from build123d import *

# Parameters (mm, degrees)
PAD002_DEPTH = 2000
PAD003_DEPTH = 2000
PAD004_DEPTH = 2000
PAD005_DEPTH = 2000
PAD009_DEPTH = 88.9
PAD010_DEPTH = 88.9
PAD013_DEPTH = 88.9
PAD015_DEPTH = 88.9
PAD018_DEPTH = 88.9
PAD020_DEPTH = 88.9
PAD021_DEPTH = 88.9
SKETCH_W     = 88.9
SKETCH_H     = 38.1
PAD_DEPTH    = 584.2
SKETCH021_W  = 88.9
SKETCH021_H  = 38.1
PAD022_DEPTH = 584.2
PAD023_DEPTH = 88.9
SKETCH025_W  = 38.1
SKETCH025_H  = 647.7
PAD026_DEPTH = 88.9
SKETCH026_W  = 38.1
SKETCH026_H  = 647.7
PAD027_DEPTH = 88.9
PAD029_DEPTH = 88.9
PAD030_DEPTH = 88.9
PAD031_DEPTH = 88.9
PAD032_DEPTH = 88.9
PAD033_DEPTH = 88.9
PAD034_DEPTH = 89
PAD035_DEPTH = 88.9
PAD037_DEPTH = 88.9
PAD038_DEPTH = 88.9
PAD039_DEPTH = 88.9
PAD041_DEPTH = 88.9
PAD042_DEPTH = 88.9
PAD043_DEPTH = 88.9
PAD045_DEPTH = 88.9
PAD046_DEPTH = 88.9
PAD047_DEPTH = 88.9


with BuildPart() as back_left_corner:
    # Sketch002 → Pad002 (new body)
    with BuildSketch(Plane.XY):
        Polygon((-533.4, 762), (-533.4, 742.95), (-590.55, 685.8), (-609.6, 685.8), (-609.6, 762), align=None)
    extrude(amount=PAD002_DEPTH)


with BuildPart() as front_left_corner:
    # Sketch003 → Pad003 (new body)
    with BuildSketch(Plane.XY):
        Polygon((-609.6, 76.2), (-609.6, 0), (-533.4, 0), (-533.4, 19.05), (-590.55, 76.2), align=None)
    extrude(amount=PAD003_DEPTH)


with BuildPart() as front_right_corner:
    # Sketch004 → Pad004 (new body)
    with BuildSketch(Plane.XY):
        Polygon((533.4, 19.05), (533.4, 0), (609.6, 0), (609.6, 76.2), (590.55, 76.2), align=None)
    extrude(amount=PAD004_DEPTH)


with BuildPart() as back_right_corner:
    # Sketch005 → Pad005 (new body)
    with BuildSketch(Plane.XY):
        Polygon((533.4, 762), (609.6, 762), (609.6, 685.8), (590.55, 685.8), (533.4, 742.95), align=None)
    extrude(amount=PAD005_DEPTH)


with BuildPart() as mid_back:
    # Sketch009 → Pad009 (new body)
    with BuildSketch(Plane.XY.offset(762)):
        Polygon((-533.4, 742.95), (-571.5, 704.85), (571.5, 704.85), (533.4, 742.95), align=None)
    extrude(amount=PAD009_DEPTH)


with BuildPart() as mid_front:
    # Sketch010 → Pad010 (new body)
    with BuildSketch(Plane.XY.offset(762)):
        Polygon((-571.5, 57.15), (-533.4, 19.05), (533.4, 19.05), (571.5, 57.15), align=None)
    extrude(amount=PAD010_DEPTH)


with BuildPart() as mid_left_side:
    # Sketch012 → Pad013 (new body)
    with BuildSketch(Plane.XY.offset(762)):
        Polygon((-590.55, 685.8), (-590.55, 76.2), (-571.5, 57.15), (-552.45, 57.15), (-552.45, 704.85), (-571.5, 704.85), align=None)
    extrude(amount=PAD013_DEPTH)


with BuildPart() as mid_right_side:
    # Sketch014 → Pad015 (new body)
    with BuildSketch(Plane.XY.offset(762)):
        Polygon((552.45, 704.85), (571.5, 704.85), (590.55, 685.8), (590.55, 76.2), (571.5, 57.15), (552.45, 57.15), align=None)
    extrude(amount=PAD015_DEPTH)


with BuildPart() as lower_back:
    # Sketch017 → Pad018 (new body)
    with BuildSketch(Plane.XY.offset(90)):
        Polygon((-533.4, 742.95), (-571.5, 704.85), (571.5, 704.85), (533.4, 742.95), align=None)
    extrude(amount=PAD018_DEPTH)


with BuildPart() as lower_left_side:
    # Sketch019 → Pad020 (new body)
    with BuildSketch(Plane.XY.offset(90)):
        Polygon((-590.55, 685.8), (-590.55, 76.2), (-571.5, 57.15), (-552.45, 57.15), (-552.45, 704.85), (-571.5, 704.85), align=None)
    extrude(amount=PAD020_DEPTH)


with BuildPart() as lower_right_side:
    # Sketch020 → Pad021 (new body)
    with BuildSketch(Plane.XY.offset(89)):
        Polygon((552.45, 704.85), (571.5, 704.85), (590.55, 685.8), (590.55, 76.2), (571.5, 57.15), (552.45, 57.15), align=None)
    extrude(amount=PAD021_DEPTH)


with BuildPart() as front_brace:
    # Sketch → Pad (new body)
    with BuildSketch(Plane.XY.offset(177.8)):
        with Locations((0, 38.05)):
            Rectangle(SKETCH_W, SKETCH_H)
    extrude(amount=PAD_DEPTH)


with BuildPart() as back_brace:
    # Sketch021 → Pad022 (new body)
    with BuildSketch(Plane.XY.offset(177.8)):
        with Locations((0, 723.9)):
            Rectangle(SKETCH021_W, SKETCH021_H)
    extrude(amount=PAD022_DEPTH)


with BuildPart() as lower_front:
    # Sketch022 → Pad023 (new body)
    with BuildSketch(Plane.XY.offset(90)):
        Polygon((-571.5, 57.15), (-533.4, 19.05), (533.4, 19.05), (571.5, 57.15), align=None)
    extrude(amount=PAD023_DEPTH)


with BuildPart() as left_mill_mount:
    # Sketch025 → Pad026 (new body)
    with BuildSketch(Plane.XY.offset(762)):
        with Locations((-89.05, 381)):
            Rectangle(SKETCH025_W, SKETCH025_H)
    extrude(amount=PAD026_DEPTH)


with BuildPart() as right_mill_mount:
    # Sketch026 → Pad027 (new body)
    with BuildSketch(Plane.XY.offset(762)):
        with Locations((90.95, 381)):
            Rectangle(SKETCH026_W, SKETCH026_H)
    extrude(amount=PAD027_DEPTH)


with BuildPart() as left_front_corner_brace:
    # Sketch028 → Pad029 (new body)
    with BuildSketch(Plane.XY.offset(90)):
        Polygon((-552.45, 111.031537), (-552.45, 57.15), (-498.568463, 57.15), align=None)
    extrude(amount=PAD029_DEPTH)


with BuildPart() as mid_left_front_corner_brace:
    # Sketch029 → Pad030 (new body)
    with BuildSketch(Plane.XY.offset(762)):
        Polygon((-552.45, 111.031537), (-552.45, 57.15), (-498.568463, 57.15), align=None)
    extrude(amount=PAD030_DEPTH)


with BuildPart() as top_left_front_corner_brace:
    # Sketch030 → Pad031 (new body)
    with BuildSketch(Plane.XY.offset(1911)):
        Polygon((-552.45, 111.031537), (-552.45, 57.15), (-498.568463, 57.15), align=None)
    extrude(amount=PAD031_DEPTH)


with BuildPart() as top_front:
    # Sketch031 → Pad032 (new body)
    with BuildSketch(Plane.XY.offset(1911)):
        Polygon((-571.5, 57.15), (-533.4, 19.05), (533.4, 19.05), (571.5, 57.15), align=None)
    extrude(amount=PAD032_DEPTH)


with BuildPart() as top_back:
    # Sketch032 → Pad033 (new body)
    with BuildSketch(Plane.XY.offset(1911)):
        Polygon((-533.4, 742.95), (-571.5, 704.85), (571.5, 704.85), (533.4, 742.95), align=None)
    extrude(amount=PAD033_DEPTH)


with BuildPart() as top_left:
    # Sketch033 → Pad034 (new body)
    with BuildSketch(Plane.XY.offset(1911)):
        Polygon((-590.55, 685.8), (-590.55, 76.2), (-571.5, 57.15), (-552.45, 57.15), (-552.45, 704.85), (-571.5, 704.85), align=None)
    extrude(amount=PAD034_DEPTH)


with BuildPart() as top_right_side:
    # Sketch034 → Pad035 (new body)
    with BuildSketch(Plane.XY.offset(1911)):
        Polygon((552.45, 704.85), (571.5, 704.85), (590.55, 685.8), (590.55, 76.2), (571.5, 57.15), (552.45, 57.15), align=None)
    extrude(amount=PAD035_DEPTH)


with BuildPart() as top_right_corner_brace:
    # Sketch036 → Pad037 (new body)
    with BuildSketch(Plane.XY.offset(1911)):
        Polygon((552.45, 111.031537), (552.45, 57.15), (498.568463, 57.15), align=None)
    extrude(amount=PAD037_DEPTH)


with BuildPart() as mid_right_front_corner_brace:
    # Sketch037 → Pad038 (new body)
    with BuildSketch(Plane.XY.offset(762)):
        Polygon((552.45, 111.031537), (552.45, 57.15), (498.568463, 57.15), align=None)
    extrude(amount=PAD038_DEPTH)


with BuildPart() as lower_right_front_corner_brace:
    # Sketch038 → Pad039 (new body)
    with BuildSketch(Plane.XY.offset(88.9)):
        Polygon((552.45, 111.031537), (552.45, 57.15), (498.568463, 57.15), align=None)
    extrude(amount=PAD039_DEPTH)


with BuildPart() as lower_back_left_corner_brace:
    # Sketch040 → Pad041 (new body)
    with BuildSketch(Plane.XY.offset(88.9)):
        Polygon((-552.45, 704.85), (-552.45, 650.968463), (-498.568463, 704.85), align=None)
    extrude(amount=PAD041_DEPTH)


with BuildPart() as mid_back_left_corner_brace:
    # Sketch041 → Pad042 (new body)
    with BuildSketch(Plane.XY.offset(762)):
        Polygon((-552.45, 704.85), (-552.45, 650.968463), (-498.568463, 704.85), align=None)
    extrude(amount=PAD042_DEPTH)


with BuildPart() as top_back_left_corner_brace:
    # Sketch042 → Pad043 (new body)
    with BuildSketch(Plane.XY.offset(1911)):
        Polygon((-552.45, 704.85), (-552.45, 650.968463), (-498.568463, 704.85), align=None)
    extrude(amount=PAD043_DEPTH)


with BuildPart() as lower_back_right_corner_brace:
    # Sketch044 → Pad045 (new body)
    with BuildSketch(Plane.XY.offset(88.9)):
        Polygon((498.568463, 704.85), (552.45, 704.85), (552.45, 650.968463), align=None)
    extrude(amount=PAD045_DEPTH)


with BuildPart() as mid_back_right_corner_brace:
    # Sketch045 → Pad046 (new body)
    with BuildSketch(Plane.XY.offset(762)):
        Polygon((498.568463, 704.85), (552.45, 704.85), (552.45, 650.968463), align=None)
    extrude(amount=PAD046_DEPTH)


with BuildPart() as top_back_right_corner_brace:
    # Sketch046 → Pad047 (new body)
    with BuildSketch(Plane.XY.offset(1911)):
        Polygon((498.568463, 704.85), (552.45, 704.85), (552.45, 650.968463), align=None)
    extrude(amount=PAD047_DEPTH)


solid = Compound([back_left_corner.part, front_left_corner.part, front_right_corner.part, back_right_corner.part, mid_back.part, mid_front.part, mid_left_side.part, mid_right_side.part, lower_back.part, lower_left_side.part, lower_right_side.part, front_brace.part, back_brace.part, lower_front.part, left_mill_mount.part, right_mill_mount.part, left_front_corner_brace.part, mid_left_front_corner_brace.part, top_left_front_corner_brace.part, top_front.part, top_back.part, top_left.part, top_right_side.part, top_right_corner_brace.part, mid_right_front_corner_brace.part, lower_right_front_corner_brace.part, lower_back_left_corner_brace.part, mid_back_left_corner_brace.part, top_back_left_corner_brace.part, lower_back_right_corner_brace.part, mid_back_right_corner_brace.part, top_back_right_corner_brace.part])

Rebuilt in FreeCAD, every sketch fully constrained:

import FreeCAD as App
import Part
import Sketcher
Q = App.Units.Quantity

doc = App.newDocument("Part")
body = doc.addObject("PartDesign::Body", "Body")

# Sketch on XY plane
sketch1 = body.newObject("Sketcher::SketchObject", "Sketch")
sketch1.AttachmentSupport = (doc.getObject("XY_Plane"), [""])
sketch1.MapMode = "FlatFace"
sketch1.addGeometry([
    Part.LineSegment(App.Vector(-533, 743, 0), App.Vector(-533, 762, 0)),  # 0
    Part.LineSegment(App.Vector(-533, 762, 0), App.Vector(-610, 762, 0)),  # 1
    Part.LineSegment(App.Vector(-610, 762, 0), App.Vector(-610, 686, 0)),  # 2
    Part.LineSegment(App.Vector(-610, 686, 0), App.Vector(-591, 686, 0)),  # 3
    Part.LineSegment(App.Vector(-591, 686, 0), App.Vector(-533, 743, 0)),  # 4
], False)
sketch1.addConstraint([
    Sketcher.Constraint("Coincident", 0, 2, 1, 1),
    Sketcher.Constraint("Coincident", 1, 2, 2, 1),
    Sketcher.Constraint("Coincident", 2, 2, 3, 1),
    Sketcher.Constraint("Coincident", 3, 2, 4, 1),
    Sketcher.Constraint("Coincident", 4, 2, 0, 1),
    Sketcher.Constraint("Vertical", 0),
    Sketcher.Constraint("Horizontal", 1),
    Sketcher.Constraint("Vertical", 2),
    Sketcher.Constraint("Horizontal", 3),
    Sketcher.Constraint("Equal", 3, 0),
    Sketcher.Constraint("Equal", 1, 2),
    Sketcher.Constraint("DistanceX", 1, 2, 1, 1, Q("3 in")),
    Sketcher.Constraint("DistanceX", 0, 2, -1, 1, Q("21 in")),
    Sketcher.Constraint("DistanceY", -1, 1, 0, 2, Q("30 in")),
    Sketcher.Constraint("DistanceX", 3, 1, 3, 2, Q("0.75 in")),
])
pad1 = body.newObject("PartDesign::Pad", "Pad")
pad1.Profile = sketch1
pad1.Length = 2000
body2 = doc.addObject("PartDesign::Body", "Body001")

# Sketch on XY plane
sketch2 = body2.newObject("Sketcher::SketchObject", "Sketch001")
sketch2.AttachmentSupport = (doc.getObject("XY_Plane001"), [""])
sketch2.MapMode = "FlatFace"
sketch2.addGeometry([
    Part.LineSegment(App.Vector(-610, 76, 0), App.Vector(-610, 0, 0)),  # 0
    Part.LineSegment(App.Vector(-610, 0, 0), App.Vector(-533, 0, 0)),  # 1
    Part.LineSegment(App.Vector(-533, 0, 0), App.Vector(-533, 19, 0)),  # 2
    Part.LineSegment(App.Vector(-533, 19, 0), App.Vector(-591, 76, 0)),  # 3
    Part.LineSegment(App.Vector(-591, 76, 0), App.Vector(-610, 76, 0)),  # 4
], False)
sketch2.addConstraint([
    Sketcher.Constraint("Coincident", 0, 2, 1, 1),
    Sketcher.Constraint("Coincident", 1, 2, 2, 1),
    Sketcher.Constraint("Coincident", 2, 2, 3, 1),
    Sketcher.Constraint("Coincident", 3, 2, 4, 1),
    Sketcher.Constraint("Coincident", 4, 2, 0, 1),
    Sketcher.Constraint("Vertical", 0),
    Sketcher.Constraint("Horizontal", 1),
    Sketcher.Constraint("Vertical", 2),
    Sketcher.Constraint("Horizontal", 4),
    Sketcher.Constraint("PointOnObject", 0, 2, -1),
    Sketcher.Constraint("Equal", 1, 0),
    Sketcher.Constraint("Equal", 4, 2),
    Sketcher.Constraint("DistanceX", 1, 1, 1, 2, Q("3 in")),
    Sketcher.Constraint("DistanceX", 0, 2, -1, 1, Q("24 in")),
    Sketcher.Constraint("DistanceX", 4, 2, 4, 1, Q("0.75 in")),
])
pad2 = body2.newObject("PartDesign::Pad", "Pad001")
pad2.Profile = sketch2
pad2.Length = 2000
body3 = doc.addObject("PartDesign::Body", "Body002")

# Sketch on XY plane
sketch3 = body3.newObject("Sketcher::SketchObject", "Sketch002")
sketch3.AttachmentSupport = (doc.getObject("XY_Plane002"), [""])
sketch3.MapMode = "FlatFace"
sketch3.addGeometry([
    Part.LineSegment(App.Vector(533, 19, 0), App.Vector(533, 0, 0)),  # 0
    Part.LineSegment(App.Vector(533, 0, 0), App.Vector(610, 0, 0)),  # 1
    Part.LineSegment(App.Vector(610, 0, 0), App.Vector(610, 76, 0)),  # 2
    Part.LineSegment(App.Vector(610, 76, 0), App.Vector(591, 76, 0)),  # 3
    Part.LineSegment(App.Vector(591, 76, 0), App.Vector(533, 19, 0)),  # 4
], False)
sketch3.addConstraint([
    Sketcher.Constraint("Coincident", 0, 2, 1, 1),
    Sketcher.Constraint("Coincident", 1, 2, 2, 1),
    Sketcher.Constraint("Coincident", 2, 2, 3, 1),
    Sketcher.Constraint("Coincident", 3, 2, 4, 1),
    Sketcher.Constraint("Coincident", 4, 2, 0, 1),
    Sketcher.Constraint("Vertical", 0),
    Sketcher.Constraint("Horizontal", 1),
    Sketcher.Constraint("Vertical", 2),
    Sketcher.Constraint("Horizontal", 3),
    Sketcher.Constraint("PointOnObject", 0, 2, -1),
    Sketcher.Constraint("Equal", 3, 0),
    Sketcher.Constraint("Equal", 1, 2),
    Sketcher.Constraint("DistanceX", 1, 1, 1, 2, Q("3 in")),
    Sketcher.Constraint("DistanceX", -1, 1, 0, 2, Q("21 in")),
    Sketcher.Constraint("DistanceX", 3, 2, 3, 1, Q("0.75 in")),
])
pad3 = body3.newObject("PartDesign::Pad", "Pad002")
pad3.Profile = sketch3
pad3.Length = 2000
body4 = doc.addObject("PartDesign::Body", "Body003")

# Sketch on XY plane
sketch4 = body4.newObject("Sketcher::SketchObject", "Sketch003")
sketch4.AttachmentSupport = (doc.getObject("XY_Plane003"), [""])
sketch4.MapMode = "FlatFace"
sketch4.addGeometry([
    Part.LineSegment(App.Vector(610, 762, 0), App.Vector(533, 762, 0)),  # 0
    Part.LineSegment(App.Vector(533, 762, 0), App.Vector(533, 743, 0)),  # 1
    Part.LineSegment(App.Vector(533, 743, 0), App.Vector(591, 686, 0)),  # 2
    Part.LineSegment(App.Vector(591, 686, 0), App.Vector(610, 686, 0)),  # 3
    Part.LineSegment(App.Vector(610, 686, 0), App.Vector(610, 762, 0)),  # 4
], False)
sketch4.addConstraint([
    Sketcher.Constraint("Coincident", 0, 2, 1, 1),
    Sketcher.Constraint("Coincident", 1, 2, 2, 1),
    Sketcher.Constraint("Coincident", 2, 2, 3, 1),
    Sketcher.Constraint("Coincident", 3, 2, 4, 1),
    Sketcher.Constraint("Coincident", 4, 2, 0, 1),
    Sketcher.Constraint("Horizontal", 0),
    Sketcher.Constraint("Vertical", 1),
    Sketcher.Constraint("Horizontal", 3),
    Sketcher.Constraint("Vertical", 4),
    Sketcher.Constraint("Equal", 3, 1),
    Sketcher.Constraint("Equal", 0, 4),
    Sketcher.Constraint("DistanceX", 0, 2, 0, 1, Q("3 in")),
    Sketcher.Constraint("DistanceX", -1, 1, 0, 2, Q("21 in")),
    Sketcher.Constraint("DistanceY", -1, 1, 0, 2, Q("30 in")),
    Sketcher.Constraint("DistanceX", 3, 1, 3, 2, Q("0.75 in")),
])
pad4 = body4.newObject("PartDesign::Pad", "Pad003")
pad4.Profile = sketch4
pad4.Length = 2000
body5 = doc.addObject("PartDesign::Body", "Body004")

# Sketch on XY plane
sketch5 = body5.newObject("Sketcher::SketchObject", "Sketch004")
sketch5.AttachmentSupport = (doc.getObject("XY_Plane004"), [""])
sketch5.MapMode = "FlatFace"
sketch5.AttachmentOffset = App.Placement(App.Vector(0, 0, 30 * 25.4), App.Rotation())
sketch5.addGeometry([
    Part.LineSegment(App.Vector(-533, 743, 0), App.Vector(-572, 705, 0)),
    Part.LineSegment(App.Vector(-572, 705, 0), App.Vector(572, 705, 0)),
    Part.LineSegment(App.Vector(572, 705, 0), App.Vector(533, 743, 0)),
    Part.LineSegment(App.Vector(533, 743, 0), App.Vector(-533, 743, 0)),
], False)
sketch5.addConstraint([
    Sketcher.Constraint("Coincident", 0, 2, 1, 1),
    Sketcher.Constraint("Coincident", 1, 2, 2, 1),
    Sketcher.Constraint("Coincident", 2, 2, 3, 1),
    Sketcher.Constraint("Coincident", 3, 2, 0, 1),
    Sketcher.Constraint("Horizontal", 1),
    Sketcher.Constraint("Horizontal", 3),
    Sketcher.Constraint("Perpendicular", 0, 2),
    Sketcher.Constraint("Equal", 0, 2),
    Sketcher.Constraint("DistanceX", 1, 1, 1, 2, Q("45 in")),
    Sketcher.Constraint("DistanceX", 3, 2, 3, 1, Q("42 in")),
    Sketcher.Constraint("DistanceX", -1, 1, 2, 2, Q("21 in")),
    Sketcher.Constraint("DistanceY", -1, 1, 0, 2, Q("27.75 in")),
])
pad5 = body5.newObject("PartDesign::Pad", "Pad004")
pad5.Profile = sketch5
pad5.Length = Q("3.5 in")
body6 = doc.addObject("PartDesign::Body", "Body005")

# Sketch on XY plane
sketch6 = body6.newObject("Sketcher::SketchObject", "Sketch005")
sketch6.AttachmentSupport = (doc.getObject("XY_Plane005"), [""])
sketch6.MapMode = "FlatFace"
sketch6.AttachmentOffset = App.Placement(App.Vector(0, 0, 30 * 25.4), App.Rotation())
sketch6.addGeometry([
    Part.LineSegment(App.Vector(-572, 57, 0), App.Vector(-533, 19, 0)),
    Part.LineSegment(App.Vector(-533, 19, 0), App.Vector(533, 19, 0)),
    Part.LineSegment(App.Vector(533, 19, 0), App.Vector(572, 57, 0)),
    Part.LineSegment(App.Vector(572, 57, 0), App.Vector(-572, 57, 0)),
], False)
sketch6.addConstraint([
    Sketcher.Constraint("Coincident", 0, 2, 1, 1),
    Sketcher.Constraint("Coincident", 1, 2, 2, 1),
    Sketcher.Constraint("Coincident", 2, 2, 3, 1),
    Sketcher.Constraint("Coincident", 3, 2, 0, 1),
    Sketcher.Constraint("Horizontal", 1),
    Sketcher.Constraint("Horizontal", 3),
    Sketcher.Constraint("Perpendicular", 0, 2),
    Sketcher.Constraint("Equal", 0, 2),
    Sketcher.Constraint("DistanceX", 1, 1, 1, 2, Q("42 in")),
    Sketcher.Constraint("DistanceX", 3, 2, 3, 1, Q("45 in")),
    Sketcher.Constraint("DistanceX", 0, 2, -1, 1, Q("21 in")),
    Sketcher.Constraint("DistanceY", -1, 1, 0, 2, Q("0.75 in")),
])
pad6 = body6.newObject("PartDesign::Pad", "Pad005")
pad6.Profile = sketch6
pad6.Length = Q("3.5 in")
body7 = doc.addObject("PartDesign::Body", "Body006")

# Sketch on XY plane
sketch7 = body7.newObject("Sketcher::SketchObject", "Sketch006")
sketch7.AttachmentSupport = (doc.getObject("XY_Plane006"), [""])
sketch7.MapMode = "FlatFace"
sketch7.AttachmentOffset = App.Placement(App.Vector(0, 0, 30 * 25.4), App.Rotation())
sketch7.addGeometry([
    Part.LineSegment(App.Vector(-591, 686, 0), App.Vector(-591, 76, 0)),  # 0
    Part.LineSegment(App.Vector(-591, 76, 0), App.Vector(-572, 57, 0)),  # 1
    Part.LineSegment(App.Vector(-572, 57, 0), App.Vector(-552, 57, 0)),  # 2
    Part.LineSegment(App.Vector(-552, 57, 0), App.Vector(-552, 705, 0)),  # 3
    Part.LineSegment(App.Vector(-552, 705, 0), App.Vector(-572, 705, 0)),  # 4
    Part.LineSegment(App.Vector(-572, 705, 0), App.Vector(-591, 686, 0)),  # 5
], False)
sketch7.addConstraint([
    Sketcher.Constraint("Coincident", 0, 2, 1, 1),
    Sketcher.Constraint("Coincident", 1, 2, 2, 1),
    Sketcher.Constraint("Coincident", 2, 2, 3, 1),
    Sketcher.Constraint("Coincident", 3, 2, 4, 1),
    Sketcher.Constraint("Coincident", 4, 2, 5, 1),
    Sketcher.Constraint("Coincident", 5, 2, 0, 1),
    Sketcher.Constraint("Vertical", 0),
    Sketcher.Constraint("Horizontal", 2),
    Sketcher.Constraint("Vertical", 3),
    Sketcher.Constraint("Horizontal", 4),
    Sketcher.Constraint("Perpendicular", 1, 5),
    Sketcher.Constraint("Vertical", 1, 2, 4, 2),
    Sketcher.Constraint("Equal", 1, 5),
    Sketcher.Constraint("DistanceY", 0, 2, 0, 1, Q("24 in")),
    Sketcher.Constraint("DistanceY", 3, 1, 3, 2, Q("25.5 in")),
    Sketcher.Constraint("DistanceY", -1, 1, 0, 2, Q("3 in")),
    Sketcher.Constraint("DistanceX", 2, 1, 2, 2, Q("0.75 in")),
    Sketcher.Constraint("DistanceX", 1, 2, -1, 1, Q("22.5 in")),
])
pad7 = body7.newObject("PartDesign::Pad", "Pad006")
pad7.Profile = sketch7
pad7.Length = Q("3.5 in")
body8 = doc.addObject("PartDesign::Body", "Body007")

# Sketch on XY plane
sketch8 = body8.newObject("Sketcher::SketchObject", "Sketch007")
sketch8.AttachmentSupport = (doc.getObject("XY_Plane007"), [""])
sketch8.MapMode = "FlatFace"
sketch8.AttachmentOffset = App.Placement(App.Vector(0, 0, 30 * 25.4), App.Rotation())
sketch8.addGeometry([
    Part.LineSegment(App.Vector(572, 705, 0), App.Vector(552, 705, 0)),  # 0
    Part.LineSegment(App.Vector(552, 705, 0), App.Vector(552, 57, 0)),  # 1
    Part.LineSegment(App.Vector(552, 57, 0), App.Vector(572, 57, 0)),  # 2
    Part.LineSegment(App.Vector(572, 57, 0), App.Vector(591, 76, 0)),  # 3
    Part.LineSegment(App.Vector(591, 76, 0), App.Vector(591, 686, 0)),  # 4
    Part.LineSegment(App.Vector(591, 686, 0), App.Vector(572, 705, 0)),  # 5
], False)
sketch8.addConstraint([
    Sketcher.Constraint("Coincident", 0, 2, 1, 1),
    Sketcher.Constraint("Coincident", 1, 2, 2, 1),
    Sketcher.Constraint("Coincident", 2, 2, 3, 1),
    Sketcher.Constraint("Coincident", 3, 2, 4, 1),
    Sketcher.Constraint("Coincident", 4, 2, 5, 1),
    Sketcher.Constraint("Coincident", 5, 2, 0, 1),
    Sketcher.Constraint("Horizontal", 0),
    Sketcher.Constraint("Vertical", 1),
    Sketcher.Constraint("Horizontal", 2),
    Sketcher.Constraint("Vertical", 4),
    Sketcher.Constraint("Perpendicular", 3, 5),
    Sketcher.Constraint("Vertical", 2, 2, 5, 2),
    Sketcher.Constraint("Equal", 3, 5),
    Sketcher.Constraint("DistanceY", 4, 1, 4, 2, Q("24 in")),
    Sketcher.Constraint("DistanceY", 1, 2, 1, 1, Q("25.5 in")),
    Sketcher.Constraint("DistanceY", -1, 1, 3, 2, Q("3 in")),
    Sketcher.Constraint("DistanceX", 0, 2, 0, 1, Q("0.75 in")),
    Sketcher.Constraint("DistanceX", -1, 1, 2, 2, Q("22.5 in")),
])
pad8 = body8.newObject("PartDesign::Pad", "Pad007")
pad8.Profile = sketch8
pad8.Length = Q("3.5 in")
body9 = doc.addObject("PartDesign::Body", "Body008")

# Sketch on XY plane
sketch9 = body9.newObject("Sketcher::SketchObject", "Sketch008")
sketch9.AttachmentSupport = (doc.getObject("XY_Plane008"), [""])
sketch9.MapMode = "FlatFace"
sketch9.AttachmentOffset = App.Placement(App.Vector(0, 0, 90), App.Rotation())
sketch9.addGeometry([
    Part.LineSegment(App.Vector(-533, 743, 0), App.Vector(-572, 705, 0)),
    Part.LineSegment(App.Vector(-572, 705, 0), App.Vector(572, 705, 0)),
    Part.LineSegment(App.Vector(572, 705, 0), App.Vector(533, 743, 0)),
    Part.LineSegment(App.Vector(533, 743, 0), App.Vector(-533, 743, 0)),
], False)
sketch9.addConstraint([
    Sketcher.Constraint("Coincident", 0, 2, 1, 1),
    Sketcher.Constraint("Coincident", 1, 2, 2, 1),
    Sketcher.Constraint("Coincident", 2, 2, 3, 1),
    Sketcher.Constraint("Coincident", 3, 2, 0, 1),
    Sketcher.Constraint("Horizontal", 1),
    Sketcher.Constraint("Horizontal", 3),
    Sketcher.Constraint("Perpendicular", 0, 2),
    Sketcher.Constraint("Equal", 0, 2),
    Sketcher.Constraint("DistanceX", 1, 1, 1, 2, Q("45 in")),
    Sketcher.Constraint("DistanceX", 3, 2, 3, 1, Q("42 in")),
    Sketcher.Constraint("DistanceX", -1, 1, 2, 2, Q("21 in")),
    Sketcher.Constraint("DistanceY", -1, 1, 0, 2, Q("27.75 in")),
])
pad9 = body9.newObject("PartDesign::Pad", "Pad008")
pad9.Profile = sketch9
pad9.Length = Q("3.5 in")
body10 = doc.addObject("PartDesign::Body", "Body009")

# Sketch on XY plane
sketch10 = body10.newObject("Sketcher::SketchObject", "Sketch009")
sketch10.AttachmentSupport = (doc.getObject("XY_Plane009"), [""])
sketch10.MapMode = "FlatFace"
sketch10.AttachmentOffset = App.Placement(App.Vector(0, 0, 90), App.Rotation())
sketch10.addGeometry([
    Part.LineSegment(App.Vector(-591, 686, 0), App.Vector(-591, 76, 0)),  # 0
    Part.LineSegment(App.Vector(-591, 76, 0), App.Vector(-572, 57, 0)),  # 1
    Part.LineSegment(App.Vector(-572, 57, 0), App.Vector(-552, 57, 0)),  # 2
    Part.LineSegment(App.Vector(-552, 57, 0), App.Vector(-552, 705, 0)),  # 3
    Part.LineSegment(App.Vector(-552, 705, 0), App.Vector(-572, 705, 0)),  # 4
    Part.LineSegment(App.Vector(-572, 705, 0), App.Vector(-591, 686, 0)),  # 5
], False)
sketch10.addConstraint([
    Sketcher.Constraint("Coincident", 0, 2, 1, 1),
    Sketcher.Constraint("Coincident", 1, 2, 2, 1),
    Sketcher.Constraint("Coincident", 2, 2, 3, 1),
    Sketcher.Constraint("Coincident", 3, 2, 4, 1),
    Sketcher.Constraint("Coincident", 4, 2, 5, 1),
    Sketcher.Constraint("Coincident", 5, 2, 0, 1),
    Sketcher.Constraint("Vertical", 0),
    Sketcher.Constraint("Horizontal", 2),
    Sketcher.Constraint("Vertical", 3),
    Sketcher.Constraint("Horizontal", 4),
    Sketcher.Constraint("Perpendicular", 1, 5),
    Sketcher.Constraint("Vertical", 1, 2, 4, 2),
    Sketcher.Constraint("Equal", 1, 5),
    Sketcher.Constraint("DistanceY", 0, 2, 0, 1, Q("24 in")),
    Sketcher.Constraint("DistanceY", 3, 1, 3, 2, Q("25.5 in")),
    Sketcher.Constraint("DistanceY", -1, 1, 0, 2, Q("3 in")),
    Sketcher.Constraint("DistanceX", 2, 1, 2, 2, Q("0.75 in")),
    Sketcher.Constraint("DistanceX", 1, 2, -1, 1, Q("22.5 in")),
])
pad10 = body10.newObject("PartDesign::Pad", "Pad009")
pad10.Profile = sketch10
pad10.Length = Q("3.5 in")
body11 = doc.addObject("PartDesign::Body", "Body010")

# Sketch on XY plane
sketch11 = body11.newObject("Sketcher::SketchObject", "Sketch010")
sketch11.AttachmentSupport = (doc.getObject("XY_Plane010"), [""])
sketch11.MapMode = "FlatFace"
sketch11.AttachmentOffset = App.Placement(App.Vector(0, 0, 89), App.Rotation())
sketch11.addGeometry([
    Part.LineSegment(App.Vector(572, 705, 0), App.Vector(552, 705, 0)),  # 0
    Part.LineSegment(App.Vector(552, 705, 0), App.Vector(552, 57, 0)),  # 1
    Part.LineSegment(App.Vector(552, 57, 0), App.Vector(572, 57, 0)),  # 2
    Part.LineSegment(App.Vector(572, 57, 0), App.Vector(591, 76, 0)),  # 3
    Part.LineSegment(App.Vector(591, 76, 0), App.Vector(591, 686, 0)),  # 4
    Part.LineSegment(App.Vector(591, 686, 0), App.Vector(572, 705, 0)),  # 5
], False)
sketch11.addConstraint([
    Sketcher.Constraint("Coincident", 0, 2, 1, 1),
    Sketcher.Constraint("Coincident", 1, 2, 2, 1),
    Sketcher.Constraint("Coincident", 2, 2, 3, 1),
    Sketcher.Constraint("Coincident", 3, 2, 4, 1),
    Sketcher.Constraint("Coincident", 4, 2, 5, 1),
    Sketcher.Constraint("Coincident", 5, 2, 0, 1),
    Sketcher.Constraint("Horizontal", 0),
    Sketcher.Constraint("Vertical", 1),
    Sketcher.Constraint("Horizontal", 2),
    Sketcher.Constraint("Vertical", 4),
    Sketcher.Constraint("Perpendicular", 3, 5),
    Sketcher.Constraint("Vertical", 2, 2, 5, 2),
    Sketcher.Constraint("Equal", 3, 5),
    Sketcher.Constraint("DistanceY", 4, 1, 4, 2, Q("24 in")),
    Sketcher.Constraint("DistanceY", 1, 2, 1, 1, Q("25.5 in")),
    Sketcher.Constraint("DistanceY", -1, 1, 3, 2, Q("3 in")),
    Sketcher.Constraint("DistanceX", 0, 2, 0, 1, Q("0.75 in")),
    Sketcher.Constraint("DistanceX", -1, 1, 2, 2, Q("22.5 in")),
])
pad11 = body11.newObject("PartDesign::Pad", "Pad010")
pad11.Profile = sketch11
pad11.Length = Q("3.5 in")
body12 = doc.addObject("PartDesign::Body", "Body011")

# Sketch on XY plane
sketch12 = body12.newObject("Sketcher::SketchObject", "Sketch011")
sketch12.AttachmentSupport = (doc.getObject("XY_Plane011"), [""])
sketch12.MapMode = "FlatFace"
sketch12.AttachmentOffset = App.Placement(App.Vector(0, 0, 7 * 25.4), App.Rotation())
sketch12.addGeometry([
    Part.LineSegment(App.Vector(-44, 57, 0), App.Vector(-44, 19, 0)),
    Part.LineSegment(App.Vector(-44, 19, 0), App.Vector(44, 19, 0)),
    Part.LineSegment(App.Vector(44, 19, 0), App.Vector(44, 57, 0)),
    Part.LineSegment(App.Vector(44, 57, 0), App.Vector(-44, 57, 0)),
], False)
sketch12.addConstraint([
    Sketcher.Constraint("Coincident", 0, 2, 1, 1),
    Sketcher.Constraint("Coincident", 1, 2, 2, 1),
    Sketcher.Constraint("Coincident", 2, 2, 3, 1),
    Sketcher.Constraint("Coincident", 3, 2, 0, 1),
    Sketcher.Constraint("Vertical", 0),
    Sketcher.Constraint("Horizontal", 1),
    Sketcher.Constraint("Vertical", 2),
    Sketcher.Constraint("Horizontal", 3),
    Sketcher.Constraint("DistanceX", 1, 1, 1, 2, Q("3.5 in")),
    Sketcher.Constraint("DistanceY", 0, 2, 0, 1, Q("1.5 in")),
    Sketcher.Constraint("DistanceX", 0, 2, -1, 1, Q("1.75 in")),
    Sketcher.Constraint("DistanceY", -1, 1, 0, 2, Q("19 mm")),
])
pad12 = body12.newObject("PartDesign::Pad", "Pad011")
pad12.Profile = sketch12
pad12.Length = Q("23 in")
body13 = doc.addObject("PartDesign::Body", "Body012")

# Sketch on XY plane
sketch13 = body13.newObject("Sketcher::SketchObject", "Sketch012")
sketch13.AttachmentSupport = (doc.getObject("XY_Plane012"), [""])
sketch13.MapMode = "FlatFace"
sketch13.AttachmentOffset = App.Placement(App.Vector(0, 0, 7 * 25.4), App.Rotation())
sketch13.addGeometry([
    Part.LineSegment(App.Vector(-44, 743, 0), App.Vector(-44, 705, 0)),
    Part.LineSegment(App.Vector(-44, 705, 0), App.Vector(44, 705, 0)),
    Part.LineSegment(App.Vector(44, 705, 0), App.Vector(44, 743, 0)),
    Part.LineSegment(App.Vector(44, 743, 0), App.Vector(-44, 743, 0)),
], False)
sketch13.addConstraint([
    Sketcher.Constraint("Coincident", 0, 2, 1, 1),
    Sketcher.Constraint("Coincident", 1, 2, 2, 1),
    Sketcher.Constraint("Coincident", 2, 2, 3, 1),
    Sketcher.Constraint("Coincident", 3, 2, 0, 1),
    Sketcher.Constraint("Vertical", 0),
    Sketcher.Constraint("Horizontal", 1),
    Sketcher.Constraint("Vertical", 2),
    Sketcher.Constraint("Horizontal", 3),
    Sketcher.Constraint("DistanceX", 1, 1, 1, 2, Q("3.5 in")),
    Sketcher.Constraint("DistanceY", 0, 2, 0, 1, Q("1.5 in")),
    Sketcher.Constraint("DistanceX", 0, 2, -1, 1, Q("1.75 in")),
    Sketcher.Constraint("DistanceY", -1, 1, 0, 2, Q("27.75 in")),
])
pad13 = body13.newObject("PartDesign::Pad", "Pad012")
pad13.Profile = sketch13
pad13.Length = Q("23 in")
body14 = doc.addObject("PartDesign::Body", "Body013")

# Sketch on XY plane
sketch14 = body14.newObject("Sketcher::SketchObject", "Sketch013")
sketch14.AttachmentSupport = (doc.getObject("XY_Plane013"), [""])
sketch14.MapMode = "FlatFace"
sketch14.AttachmentOffset = App.Placement(App.Vector(0, 0, 90), App.Rotation())
sketch14.addGeometry([
    Part.LineSegment(App.Vector(-572, 57, 0), App.Vector(-533, 19, 0)),
    Part.LineSegment(App.Vector(-533, 19, 0), App.Vector(533, 19, 0)),
    Part.LineSegment(App.Vector(533, 19, 0), App.Vector(572, 57, 0)),
    Part.LineSegment(App.Vector(572, 57, 0), App.Vector(-572, 57, 0)),
], False)
sketch14.addConstraint([
    Sketcher.Constraint("Coincident", 0, 2, 1, 1),
    Sketcher.Constraint("Coincident", 1, 2, 2, 1),
    Sketcher.Constraint("Coincident", 2, 2, 3, 1),
    Sketcher.Constraint("Coincident", 3, 2, 0, 1),
    Sketcher.Constraint("Horizontal", 1),
    Sketcher.Constraint("Horizontal", 3),
    Sketcher.Constraint("Perpendicular", 0, 2),
    Sketcher.Constraint("Equal", 0, 2),
    Sketcher.Constraint("DistanceX", 1, 1, 1, 2, Q("42 in")),
    Sketcher.Constraint("DistanceX", 3, 2, 3, 1, Q("45 in")),
    Sketcher.Constraint("DistanceX", 0, 2, -1, 1, Q("21 in")),
    Sketcher.Constraint("DistanceY", -1, 1, 0, 2, Q("0.75 in")),
])
pad14 = body14.newObject("PartDesign::Pad", "Pad013")
pad14.Profile = sketch14
pad14.Length = Q("3.5 in")
body15 = doc.addObject("PartDesign::Body", "Body014")

# Sketch on XY plane
sketch15 = body15.newObject("Sketcher::SketchObject", "Sketch014")
sketch15.AttachmentSupport = (doc.getObject("XY_Plane014"), [""])
sketch15.MapMode = "FlatFace"
sketch15.AttachmentOffset = App.Placement(App.Vector(0, 0, 30 * 25.4), App.Rotation())
sketch15.addGeometry([
    Part.LineSegment(App.Vector(-108, 705, 0), App.Vector(-108, 57, 0)),
    Part.LineSegment(App.Vector(-108, 57, 0), App.Vector(-70, 57, 0)),
    Part.LineSegment(App.Vector(-70, 57, 0), App.Vector(-70, 705, 0)),
    Part.LineSegment(App.Vector(-70, 705, 0), App.Vector(-108, 705, 0)),
], False)
sketch15.addConstraint([
    Sketcher.Constraint("Coincident", 0, 2, 1, 1),
    Sketcher.Constraint("Coincident", 1, 2, 2, 1),
    Sketcher.Constraint("Coincident", 2, 2, 3, 1),
    Sketcher.Constraint("Coincident", 3, 2, 0, 1),
    Sketcher.Constraint("Vertical", 0),
    Sketcher.Constraint("Horizontal", 1),
    Sketcher.Constraint("Vertical", 2),
    Sketcher.Constraint("Horizontal", 3),
    Sketcher.Constraint("DistanceX", 1, 1, 1, 2, Q("1.5 in")),
    Sketcher.Constraint("DistanceY", 0, 2, 0, 1, Q("25.5 in")),
    Sketcher.Constraint("DistanceY", -1, 1, 0, 2, Q("2.25 in")),
    Sketcher.Constraint("DistanceX", 0, 2, -1, 1, Q("108.1 mm")),
])
pad15 = body15.newObject("PartDesign::Pad", "Pad014")
pad15.Profile = sketch15
pad15.Length = Q("3.5 in")
body16 = doc.addObject("PartDesign::Body", "Body015")

# Sketch on XY plane
sketch16 = body16.newObject("Sketcher::SketchObject", "Sketch015")
sketch16.AttachmentSupport = (doc.getObject("XY_Plane015"), [""])
sketch16.MapMode = "FlatFace"
sketch16.AttachmentOffset = App.Placement(App.Vector(0, 0, 30 * 25.4), App.Rotation())
sketch16.addGeometry([
    Part.LineSegment(App.Vector(72, 705, 0), App.Vector(72, 57, 0)),
    Part.LineSegment(App.Vector(72, 57, 0), App.Vector(110, 57, 0)),
    Part.LineSegment(App.Vector(110, 57, 0), App.Vector(110, 705, 0)),
    Part.LineSegment(App.Vector(110, 705, 0), App.Vector(72, 705, 0)),
], False)
sketch16.addConstraint([
    Sketcher.Constraint("Coincident", 0, 2, 1, 1),
    Sketcher.Constraint("Coincident", 1, 2, 2, 1),
    Sketcher.Constraint("Coincident", 2, 2, 3, 1),
    Sketcher.Constraint("Coincident", 3, 2, 0, 1),
    Sketcher.Constraint("Vertical", 0),
    Sketcher.Constraint("Horizontal", 1),
    Sketcher.Constraint("Vertical", 2),
    Sketcher.Constraint("Horizontal", 3),
    Sketcher.Constraint("DistanceX", 1, 1, 1, 2, Q("1.5 in")),
    Sketcher.Constraint("DistanceY", 0, 2, 0, 1, Q("25.5 in")),
    Sketcher.Constraint("DistanceY", -1, 1, 0, 2, Q("2.25 in")),
    Sketcher.Constraint("DistanceX", -1, 1, 0, 2, Q("71.9 mm")),
])
pad16 = body16.newObject("PartDesign::Pad", "Pad015")
pad16.Profile = sketch16
pad16.Length = Q("3.5 in")
body17 = doc.addObject("PartDesign::Body", "Body016")

# Sketch on XY plane
sketch17 = body17.newObject("Sketcher::SketchObject", "Sketch016")
sketch17.AttachmentSupport = (doc.getObject("XY_Plane016"), [""])
sketch17.MapMode = "FlatFace"
sketch17.AttachmentOffset = App.Placement(App.Vector(0, 0, 90), App.Rotation())
sketch17.addGeometry([
    Part.LineSegment(App.Vector(-552, 111, 0), App.Vector(-552, 57, 0)),
    Part.LineSegment(App.Vector(-552, 57, 0), App.Vector(-499, 57, 0)),
    Part.LineSegment(App.Vector(-499, 57, 0), App.Vector(-552, 111, 0)),
], False)
sketch17.addConstraint([
    Sketcher.Constraint("Coincident", 0, 2, 1, 1),
    Sketcher.Constraint("Coincident", 1, 2, 2, 1),
    Sketcher.Constraint("Coincident", 2, 2, 0, 1),
    Sketcher.Constraint("Vertical", 0),
    Sketcher.Constraint("Horizontal", 1),
    Sketcher.Constraint("Equal", 1, 0),
    Sketcher.Constraint("Distance", 2, Q("3 in")),
    Sketcher.Constraint("DistanceX", 0, 2, -1, 1, Q("21.75 in")),
    Sketcher.Constraint("DistanceY", -1, 1, 0, 2, Q("2.25 in")),
])
pad17 = body17.newObject("PartDesign::Pad", "Pad016")
pad17.Profile = sketch17
pad17.Length = Q("3.5 in")
body18 = doc.addObject("PartDesign::Body", "Body017")

# Sketch on XY plane
sketch18 = body18.newObject("Sketcher::SketchObject", "Sketch017")
sketch18.AttachmentSupport = (doc.getObject("XY_Plane017"), [""])
sketch18.MapMode = "FlatFace"
sketch18.AttachmentOffset = App.Placement(App.Vector(0, 0, 30 * 25.4), App.Rotation())
sketch18.addGeometry([
    Part.LineSegment(App.Vector(-552, 111, 0), App.Vector(-552, 57, 0)),
    Part.LineSegment(App.Vector(-552, 57, 0), App.Vector(-499, 57, 0)),
    Part.LineSegment(App.Vector(-499, 57, 0), App.Vector(-552, 111, 0)),
], False)
sketch18.addConstraint([
    Sketcher.Constraint("Coincident", 0, 2, 1, 1),
    Sketcher.Constraint("Coincident", 1, 2, 2, 1),
    Sketcher.Constraint("Coincident", 2, 2, 0, 1),
    Sketcher.Constraint("Vertical", 0),
    Sketcher.Constraint("Horizontal", 1),
    Sketcher.Constraint("Equal", 1, 0),
    Sketcher.Constraint("Distance", 2, Q("3 in")),
    Sketcher.Constraint("DistanceX", 0, 2, -1, 1, Q("21.75 in")),
    Sketcher.Constraint("DistanceY", -1, 1, 0, 2, Q("2.25 in")),
])
pad18 = body18.newObject("PartDesign::Pad", "Pad017")
pad18.Profile = sketch18
pad18.Length = Q("3.5 in")
body19 = doc.addObject("PartDesign::Body", "Body018")

# Sketch on XY plane
sketch19 = body19.newObject("Sketcher::SketchObject", "Sketch018")
sketch19.AttachmentSupport = (doc.getObject("XY_Plane018"), [""])
sketch19.MapMode = "FlatFace"
sketch19.AttachmentOffset = App.Placement(App.Vector(0, 0, 1911), App.Rotation())
sketch19.addGeometry([
    Part.LineSegment(App.Vector(-552, 111, 0), App.Vector(-552, 57, 0)),
    Part.LineSegment(App.Vector(-552, 57, 0), App.Vector(-499, 57, 0)),
    Part.LineSegment(App.Vector(-499, 57, 0), App.Vector(-552, 111, 0)),
], False)
sketch19.addConstraint([
    Sketcher.Constraint("Coincident", 0, 2, 1, 1),
    Sketcher.Constraint("Coincident", 1, 2, 2, 1),
    Sketcher.Constraint("Coincident", 2, 2, 0, 1),
    Sketcher.Constraint("Vertical", 0),
    Sketcher.Constraint("Horizontal", 1),
    Sketcher.Constraint("Equal", 1, 0),
    Sketcher.Constraint("Distance", 2, Q("3 in")),
    Sketcher.Constraint("DistanceX", 0, 2, -1, 1, Q("21.75 in")),
    Sketcher.Constraint("DistanceY", -1, 1, 0, 2, Q("2.25 in")),
])
pad19 = body19.newObject("PartDesign::Pad", "Pad018")
pad19.Profile = sketch19
pad19.Length = Q("3.5 in")
body20 = doc.addObject("PartDesign::Body", "Body019")

# Sketch on XY plane
sketch20 = body20.newObject("Sketcher::SketchObject", "Sketch019")
sketch20.AttachmentSupport = (doc.getObject("XY_Plane019"), [""])
sketch20.MapMode = "FlatFace"
sketch20.AttachmentOffset = App.Placement(App.Vector(0, 0, 1911), App.Rotation())
sketch20.addGeometry([
    Part.LineSegment(App.Vector(-572, 57, 0), App.Vector(-533, 19, 0)),
    Part.LineSegment(App.Vector(-533, 19, 0), App.Vector(533, 19, 0)),
    Part.LineSegment(App.Vector(533, 19, 0), App.Vector(572, 57, 0)),
    Part.LineSegment(App.Vector(572, 57, 0), App.Vector(-572, 57, 0)),
], False)
sketch20.addConstraint([
    Sketcher.Constraint("Coincident", 0, 2, 1, 1),
    Sketcher.Constraint("Coincident", 1, 2, 2, 1),
    Sketcher.Constraint("Coincident", 2, 2, 3, 1),
    Sketcher.Constraint("Coincident", 3, 2, 0, 1),
    Sketcher.Constraint("Horizontal", 1),
    Sketcher.Constraint("Horizontal", 3),
    Sketcher.Constraint("Perpendicular", 0, 2),
    Sketcher.Constraint("Equal", 0, 2),
    Sketcher.Constraint("DistanceX", 1, 1, 1, 2, Q("42 in")),
    Sketcher.Constraint("DistanceX", 3, 2, 3, 1, Q("45 in")),
    Sketcher.Constraint("DistanceX", 0, 2, -1, 1, Q("21 in")),
    Sketcher.Constraint("DistanceY", -1, 1, 0, 2, Q("0.75 in")),
])
pad20 = body20.newObject("PartDesign::Pad", "Pad019")
pad20.Profile = sketch20
pad20.Length = Q("3.5 in")
body21 = doc.addObject("PartDesign::Body", "Body020")

# Sketch on XY plane
sketch21 = body21.newObject("Sketcher::SketchObject", "Sketch020")
sketch21.AttachmentSupport = (doc.getObject("XY_Plane020"), [""])
sketch21.MapMode = "FlatFace"
sketch21.AttachmentOffset = App.Placement(App.Vector(0, 0, 1911), App.Rotation())
sketch21.addGeometry([
    Part.LineSegment(App.Vector(-533, 743, 0), App.Vector(-572, 705, 0)),
    Part.LineSegment(App.Vector(-572, 705, 0), App.Vector(572, 705, 0)),
    Part.LineSegment(App.Vector(572, 705, 0), App.Vector(533, 743, 0)),
    Part.LineSegment(App.Vector(533, 743, 0), App.Vector(-533, 743, 0)),
], False)
sketch21.addConstraint([
    Sketcher.Constraint("Coincident", 0, 2, 1, 1),
    Sketcher.Constraint("Coincident", 1, 2, 2, 1),
    Sketcher.Constraint("Coincident", 2, 2, 3, 1),
    Sketcher.Constraint("Coincident", 3, 2, 0, 1),
    Sketcher.Constraint("Horizontal", 1),
    Sketcher.Constraint("Horizontal", 3),
    Sketcher.Constraint("Perpendicular", 0, 2),
    Sketcher.Constraint("Equal", 0, 2),
    Sketcher.Constraint("DistanceX", 1, 1, 1, 2, Q("45 in")),
    Sketcher.Constraint("DistanceX", 3, 2, 3, 1, Q("42 in")),
    Sketcher.Constraint("DistanceX", -1, 1, 2, 2, Q("21 in")),
    Sketcher.Constraint("DistanceY", -1, 1, 0, 2, Q("27.75 in")),
])
pad21 = body21.newObject("PartDesign::Pad", "Pad020")
pad21.Profile = sketch21
pad21.Length = Q("3.5 in")
body22 = doc.addObject("PartDesign::Body", "Body021")

# Sketch on XY plane
sketch22 = body22.newObject("Sketcher::SketchObject", "Sketch021")
sketch22.AttachmentSupport = (doc.getObject("XY_Plane021"), [""])
sketch22.MapMode = "FlatFace"
sketch22.AttachmentOffset = App.Placement(App.Vector(0, 0, 1911), App.Rotation())
sketch22.addGeometry([
    Part.LineSegment(App.Vector(-591, 686, 0), App.Vector(-591, 76, 0)),  # 0
    Part.LineSegment(App.Vector(-591, 76, 0), App.Vector(-572, 57, 0)),  # 1
    Part.LineSegment(App.Vector(-572, 57, 0), App.Vector(-552, 57, 0)),  # 2
    Part.LineSegment(App.Vector(-552, 57, 0), App.Vector(-552, 705, 0)),  # 3
    Part.LineSegment(App.Vector(-552, 705, 0), App.Vector(-572, 705, 0)),  # 4
    Part.LineSegment(App.Vector(-572, 705, 0), App.Vector(-591, 686, 0)),  # 5
], False)
sketch22.addConstraint([
    Sketcher.Constraint("Coincident", 0, 2, 1, 1),
    Sketcher.Constraint("Coincident", 1, 2, 2, 1),
    Sketcher.Constraint("Coincident", 2, 2, 3, 1),
    Sketcher.Constraint("Coincident", 3, 2, 4, 1),
    Sketcher.Constraint("Coincident", 4, 2, 5, 1),
    Sketcher.Constraint("Coincident", 5, 2, 0, 1),
    Sketcher.Constraint("Vertical", 0),
    Sketcher.Constraint("Horizontal", 2),
    Sketcher.Constraint("Vertical", 3),
    Sketcher.Constraint("Horizontal", 4),
    Sketcher.Constraint("Perpendicular", 1, 5),
    Sketcher.Constraint("Vertical", 1, 2, 4, 2),
    Sketcher.Constraint("Equal", 1, 5),
    Sketcher.Constraint("DistanceY", 0, 2, 0, 1, Q("24 in")),
    Sketcher.Constraint("DistanceY", 3, 1, 3, 2, Q("25.5 in")),
    Sketcher.Constraint("DistanceY", -1, 1, 0, 2, Q("3 in")),
    Sketcher.Constraint("DistanceX", 2, 1, 2, 2, Q("0.75 in")),
    Sketcher.Constraint("DistanceX", 1, 2, -1, 1, Q("22.5 in")),
])
pad22 = body22.newObject("PartDesign::Pad", "Pad021")
pad22.Profile = sketch22
pad22.Length = 89
body23 = doc.addObject("PartDesign::Body", "Body022")

# Sketch on XY plane
sketch23 = body23.newObject("Sketcher::SketchObject", "Sketch022")
sketch23.AttachmentSupport = (doc.getObject("XY_Plane022"), [""])
sketch23.MapMode = "FlatFace"
sketch23.AttachmentOffset = App.Placement(App.Vector(0, 0, 1911), App.Rotation())
sketch23.addGeometry([
    Part.LineSegment(App.Vector(572, 705, 0), App.Vector(552, 705, 0)),  # 0
    Part.LineSegment(App.Vector(552, 705, 0), App.Vector(552, 57, 0)),  # 1
    Part.LineSegment(App.Vector(552, 57, 0), App.Vector(572, 57, 0)),  # 2
    Part.LineSegment(App.Vector(572, 57, 0), App.Vector(591, 76, 0)),  # 3
    Part.LineSegment(App.Vector(591, 76, 0), App.Vector(591, 686, 0)),  # 4
    Part.LineSegment(App.Vector(591, 686, 0), App.Vector(572, 705, 0)),  # 5
], False)
sketch23.addConstraint([
    Sketcher.Constraint("Coincident", 0, 2, 1, 1),
    Sketcher.Constraint("Coincident", 1, 2, 2, 1),
    Sketcher.Constraint("Coincident", 2, 2, 3, 1),
    Sketcher.Constraint("Coincident", 3, 2, 4, 1),
    Sketcher.Constraint("Coincident", 4, 2, 5, 1),
    Sketcher.Constraint("Coincident", 5, 2, 0, 1),
    Sketcher.Constraint("Horizontal", 0),
    Sketcher.Constraint("Vertical", 1),
    Sketcher.Constraint("Horizontal", 2),
    Sketcher.Constraint("Vertical", 4),
    Sketcher.Constraint("Perpendicular", 3, 5),
    Sketcher.Constraint("Vertical", 2, 2, 5, 2),
    Sketcher.Constraint("Equal", 3, 5),
    Sketcher.Constraint("DistanceY", 4, 1, 4, 2, Q("24 in")),
    Sketcher.Constraint("DistanceY", 1, 2, 1, 1, Q("25.5 in")),
    Sketcher.Constraint("DistanceY", -1, 1, 3, 2, Q("3 in")),
    Sketcher.Constraint("DistanceX", 0, 2, 0, 1, Q("0.75 in")),
    Sketcher.Constraint("DistanceX", -1, 1, 2, 2, Q("22.5 in")),
])
pad23 = body23.newObject("PartDesign::Pad", "Pad022")
pad23.Profile = sketch23
pad23.Length = Q("3.5 in")
body24 = doc.addObject("PartDesign::Body", "Body023")

# Sketch on XY plane
sketch24 = body24.newObject("Sketcher::SketchObject", "Sketch023")
sketch24.AttachmentSupport = (doc.getObject("XY_Plane023"), [""])
sketch24.MapMode = "FlatFace"
sketch24.AttachmentOffset = App.Placement(App.Vector(0, 0, 1911), App.Rotation())
sketch24.addGeometry([
    Part.LineSegment(App.Vector(552, 57, 0), App.Vector(552, 111, 0)),
    Part.LineSegment(App.Vector(552, 111, 0), App.Vector(499, 57, 0)),
    Part.LineSegment(App.Vector(499, 57, 0), App.Vector(552, 57, 0)),
], False)
sketch24.addConstraint([
    Sketcher.Constraint("Coincident", 0, 2, 1, 1),
    Sketcher.Constraint("Coincident", 1, 2, 2, 1),
    Sketcher.Constraint("Coincident", 2, 2, 0, 1),
    Sketcher.Constraint("Vertical", 0),
    Sketcher.Constraint("Horizontal", 2),
    Sketcher.Constraint("Equal", 2, 0),
    Sketcher.Constraint("Distance", 1, Q("3 in")),
    Sketcher.Constraint("DistanceX", -1, 1, 0, 2, Q("21.75 in")),
    Sketcher.Constraint("DistanceY", -1, 1, 1, 2, Q("2.25 in")),
])
pad24 = body24.newObject("PartDesign::Pad", "Pad023")
pad24.Profile = sketch24
pad24.Length = Q("3.5 in")
body25 = doc.addObject("PartDesign::Body", "Body024")

# Sketch on XY plane
sketch25 = body25.newObject("Sketcher::SketchObject", "Sketch024")
sketch25.AttachmentSupport = (doc.getObject("XY_Plane024"), [""])
sketch25.MapMode = "FlatFace"
sketch25.AttachmentOffset = App.Placement(App.Vector(0, 0, 30 * 25.4), App.Rotation())
sketch25.addGeometry([
    Part.LineSegment(App.Vector(552, 57, 0), App.Vector(552, 111, 0)),
    Part.LineSegment(App.Vector(552, 111, 0), App.Vector(499, 57, 0)),
    Part.LineSegment(App.Vector(499, 57, 0), App.Vector(552, 57, 0)),
], False)
sketch25.addConstraint([
    Sketcher.Constraint("Coincident", 0, 2, 1, 1),
    Sketcher.Constraint("Coincident", 1, 2, 2, 1),
    Sketcher.Constraint("Coincident", 2, 2, 0, 1),
    Sketcher.Constraint("Vertical", 0),
    Sketcher.Constraint("Horizontal", 2),
    Sketcher.Constraint("Equal", 2, 0),
    Sketcher.Constraint("Distance", 1, Q("3 in")),
    Sketcher.Constraint("DistanceX", -1, 1, 0, 2, Q("21.75 in")),
    Sketcher.Constraint("DistanceY", -1, 1, 1, 2, Q("2.25 in")),
])
pad25 = body25.newObject("PartDesign::Pad", "Pad024")
pad25.Profile = sketch25
pad25.Length = Q("3.5 in")
body26 = doc.addObject("PartDesign::Body", "Body025")

# Sketch on XY plane
sketch26 = body26.newObject("Sketcher::SketchObject", "Sketch025")
sketch26.AttachmentSupport = (doc.getObject("XY_Plane025"), [""])
sketch26.MapMode = "FlatFace"
sketch26.AttachmentOffset = App.Placement(App.Vector(0, 0, 3.5 * 25.4), App.Rotation())
sketch26.addGeometry([
    Part.LineSegment(App.Vector(552, 57, 0), App.Vector(552, 111, 0)),
    Part.LineSegment(App.Vector(552, 111, 0), App.Vector(499, 57, 0)),
    Part.LineSegment(App.Vector(499, 57, 0), App.Vector(552, 57, 0)),
], False)
sketch26.addConstraint([
    Sketcher.Constraint("Coincident", 0, 2, 1, 1),
    Sketcher.Constraint("Coincident", 1, 2, 2, 1),
    Sketcher.Constraint("Coincident", 2, 2, 0, 1),
    Sketcher.Constraint("Vertical", 0),
    Sketcher.Constraint("Horizontal", 2),
    Sketcher.Constraint("Equal", 2, 0),
    Sketcher.Constraint("Distance", 1, Q("3 in")),
    Sketcher.Constraint("DistanceX", -1, 1, 0, 2, Q("21.75 in")),
    Sketcher.Constraint("DistanceY", -1, 1, 1, 2, Q("2.25 in")),
])
pad26 = body26.newObject("PartDesign::Pad", "Pad025")
pad26.Profile = sketch26
pad26.Length = Q("3.5 in")
body27 = doc.addObject("PartDesign::Body", "Body026")

# Sketch on XY plane
sketch27 = body27.newObject("Sketcher::SketchObject", "Sketch026")
sketch27.AttachmentSupport = (doc.getObject("XY_Plane026"), [""])
sketch27.MapMode = "FlatFace"
sketch27.AttachmentOffset = App.Placement(App.Vector(0, 0, 3.5 * 25.4), App.Rotation())
sketch27.addGeometry([
    Part.LineSegment(App.Vector(-552, 705, 0), App.Vector(-552, 651, 0)),
    Part.LineSegment(App.Vector(-552, 651, 0), App.Vector(-499, 705, 0)),
    Part.LineSegment(App.Vector(-499, 705, 0), App.Vector(-552, 705, 0)),
], False)
sketch27.addConstraint([
    Sketcher.Constraint("Coincident", 0, 2, 1, 1),
    Sketcher.Constraint("Coincident", 1, 2, 2, 1),
    Sketcher.Constraint("Coincident", 2, 2, 0, 1),
    Sketcher.Constraint("Vertical", 0),
    Sketcher.Constraint("Horizontal", 2),
    Sketcher.Constraint("Equal", 2, 0),
    Sketcher.Constraint("Distance", 1, Q("3 in")),
    Sketcher.Constraint("DistanceX", 0, 2, -1, 1, Q("21.75 in")),
    Sketcher.Constraint("DistanceY", -1, 1, 1, 2, Q("27.75 in")),
])
pad27 = body27.newObject("PartDesign::Pad", "Pad026")
pad27.Profile = sketch27
pad27.Length = Q("3.5 in")
body28 = doc.addObject("PartDesign::Body", "Body027")

# Sketch on XY plane
sketch28 = body28.newObject("Sketcher::SketchObject", "Sketch027")
sketch28.AttachmentSupport = (doc.getObject("XY_Plane027"), [""])
sketch28.MapMode = "FlatFace"
sketch28.AttachmentOffset = App.Placement(App.Vector(0, 0, 30 * 25.4), App.Rotation())
sketch28.addGeometry([
    Part.LineSegment(App.Vector(-552, 705, 0), App.Vector(-552, 651, 0)),
    Part.LineSegment(App.Vector(-552, 651, 0), App.Vector(-499, 705, 0)),
    Part.LineSegment(App.Vector(-499, 705, 0), App.Vector(-552, 705, 0)),
], False)
sketch28.addConstraint([
    Sketcher.Constraint("Coincident", 0, 2, 1, 1),
    Sketcher.Constraint("Coincident", 1, 2, 2, 1),
    Sketcher.Constraint("Coincident", 2, 2, 0, 1),
    Sketcher.Constraint("Vertical", 0),
    Sketcher.Constraint("Horizontal", 2),
    Sketcher.Constraint("Equal", 2, 0),
    Sketcher.Constraint("Distance", 1, Q("3 in")),
    Sketcher.Constraint("DistanceX", 0, 2, -1, 1, Q("21.75 in")),
    Sketcher.Constraint("DistanceY", -1, 1, 1, 2, Q("27.75 in")),
])
pad28 = body28.newObject("PartDesign::Pad", "Pad027")
pad28.Profile = sketch28
pad28.Length = Q("3.5 in")
body29 = doc.addObject("PartDesign::Body", "Body028")

# Sketch on XY plane
sketch29 = body29.newObject("Sketcher::SketchObject", "Sketch028")
sketch29.AttachmentSupport = (doc.getObject("XY_Plane028"), [""])
sketch29.MapMode = "FlatFace"
sketch29.AttachmentOffset = App.Placement(App.Vector(0, 0, 1911), App.Rotation())
sketch29.addGeometry([
    Part.LineSegment(App.Vector(-552, 705, 0), App.Vector(-552, 651, 0)),
    Part.LineSegment(App.Vector(-552, 651, 0), App.Vector(-499, 705, 0)),
    Part.LineSegment(App.Vector(-499, 705, 0), App.Vector(-552, 705, 0)),
], False)
sketch29.addConstraint([
    Sketcher.Constraint("Coincident", 0, 2, 1, 1),
    Sketcher.Constraint("Coincident", 1, 2, 2, 1),
    Sketcher.Constraint("Coincident", 2, 2, 0, 1),
    Sketcher.Constraint("Vertical", 0),
    Sketcher.Constraint("Horizontal", 2),
    Sketcher.Constraint("Equal", 2, 0),
    Sketcher.Constraint("Distance", 1, Q("3 in")),
    Sketcher.Constraint("DistanceX", 0, 2, -1, 1, Q("21.75 in")),
    Sketcher.Constraint("DistanceY", -1, 1, 1, 2, Q("27.75 in")),
])
pad29 = body29.newObject("PartDesign::Pad", "Pad028")
pad29.Profile = sketch29
pad29.Length = Q("3.5 in")
body30 = doc.addObject("PartDesign::Body", "Body029")

# Sketch on XY plane
sketch30 = body30.newObject("Sketcher::SketchObject", "Sketch029")
sketch30.AttachmentSupport = (doc.getObject("XY_Plane029"), [""])
sketch30.MapMode = "FlatFace"
sketch30.AttachmentOffset = App.Placement(App.Vector(0, 0, 3.5 * 25.4), App.Rotation())
sketch30.addGeometry([
    Part.LineSegment(App.Vector(552, 705, 0), App.Vector(499, 705, 0)),
    Part.LineSegment(App.Vector(499, 705, 0), App.Vector(552, 651, 0)),
    Part.LineSegment(App.Vector(552, 651, 0), App.Vector(552, 705, 0)),
], False)
sketch30.addConstraint([
    Sketcher.Constraint("Coincident", 0, 2, 1, 1),
    Sketcher.Constraint("Coincident", 1, 2, 2, 1),
    Sketcher.Constraint("Coincident", 2, 2, 0, 1),
    Sketcher.Constraint("Horizontal", 0),
    Sketcher.Constraint("Vertical", 2),
    Sketcher.Constraint("Equal", 0, 2),
    Sketcher.Constraint("Distance", 1, Q("3 in")),
    Sketcher.Constraint("DistanceY", -1, 1, 0, 2, Q("27.75 in")),
    Sketcher.Constraint("DistanceX", -1, 1, 1, 2, Q("21.75 in")),
])
pad30 = body30.newObject("PartDesign::Pad", "Pad029")
pad30.Profile = sketch30
pad30.Length = Q("3.5 in")
body31 = doc.addObject("PartDesign::Body", "Body030")

# Sketch on XY plane
sketch31 = body31.newObject("Sketcher::SketchObject", "Sketch030")
sketch31.AttachmentSupport = (doc.getObject("XY_Plane030"), [""])
sketch31.MapMode = "FlatFace"
sketch31.AttachmentOffset = App.Placement(App.Vector(0, 0, 30 * 25.4), App.Rotation())
sketch31.addGeometry([
    Part.LineSegment(App.Vector(552, 705, 0), App.Vector(499, 705, 0)),
    Part.LineSegment(App.Vector(499, 705, 0), App.Vector(552, 651, 0)),
    Part.LineSegment(App.Vector(552, 651, 0), App.Vector(552, 705, 0)),
], False)
sketch31.addConstraint([
    Sketcher.Constraint("Coincident", 0, 2, 1, 1),
    Sketcher.Constraint("Coincident", 1, 2, 2, 1),
    Sketcher.Constraint("Coincident", 2, 2, 0, 1),
    Sketcher.Constraint("Horizontal", 0),
    Sketcher.Constraint("Vertical", 2),
    Sketcher.Constraint("Equal", 0, 2),
    Sketcher.Constraint("Distance", 1, Q("3 in")),
    Sketcher.Constraint("DistanceY", -1, 1, 0, 2, Q("27.75 in")),
    Sketcher.Constraint("DistanceX", -1, 1, 1, 2, Q("21.75 in")),
])
pad31 = body31.newObject("PartDesign::Pad", "Pad030")
pad31.Profile = sketch31
pad31.Length = Q("3.5 in")
body32 = doc.addObject("PartDesign::Body", "Body031")

# Sketch on XY plane
sketch32 = body32.newObject("Sketcher::SketchObject", "Sketch031")
sketch32.AttachmentSupport = (doc.getObject("XY_Plane031"), [""])
sketch32.MapMode = "FlatFace"
sketch32.AttachmentOffset = App.Placement(App.Vector(0, 0, 1911), App.Rotation())
sketch32.addGeometry([
    Part.LineSegment(App.Vector(552, 705, 0), App.Vector(499, 705, 0)),
    Part.LineSegment(App.Vector(499, 705, 0), App.Vector(552, 651, 0)),
    Part.LineSegment(App.Vector(552, 651, 0), App.Vector(552, 705, 0)),
], False)
sketch32.addConstraint([
    Sketcher.Constraint("Coincident", 0, 2, 1, 1),
    Sketcher.Constraint("Coincident", 1, 2, 2, 1),
    Sketcher.Constraint("Coincident", 2, 2, 0, 1),
    Sketcher.Constraint("Horizontal", 0),
    Sketcher.Constraint("Vertical", 2),
    Sketcher.Constraint("Equal", 0, 2),
    Sketcher.Constraint("Distance", 1, Q("3 in")),
    Sketcher.Constraint("DistanceY", -1, 1, 0, 2, Q("27.75 in")),
    Sketcher.Constraint("DistanceX", -1, 1, 1, 2, Q("21.75 in")),
])
pad32 = body32.newObject("PartDesign::Pad", "Pad031")
pad32.Profile = sketch32
pad32.Length = Q("3.5 in")

doc.recompute()
